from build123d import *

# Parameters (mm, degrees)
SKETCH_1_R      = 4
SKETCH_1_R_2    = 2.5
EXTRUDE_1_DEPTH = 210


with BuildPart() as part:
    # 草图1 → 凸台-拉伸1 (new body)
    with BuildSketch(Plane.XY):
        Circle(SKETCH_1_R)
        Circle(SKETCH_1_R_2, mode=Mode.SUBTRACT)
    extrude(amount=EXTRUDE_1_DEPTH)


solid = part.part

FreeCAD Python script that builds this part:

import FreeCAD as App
import Part
import Sketcher
Q = App.Units.Quantity

doc = App.newDocument("Part")
body = doc.addObject("PartDesign::Body", "Body")

sketch1 = body.newObject("Sketcher::SketchObject", "Sketch")
sketch1.AttachmentSupport = (doc.getObject("XY_Plane"), [""])
sketch1.MapMode = "FlatFace"
sketch1.addGeometry(Part.Circle(App.Vector(0, 0, 0), App.Vector(0, 0, 1), 4), False)
sketch1.addGeometry(Part.Circle(App.Vector(0, 0, 0), App.Vector(0, 0, 1), 2.5), False)
sketch1.addConstraint(Sketcher.Constraint("Coincident", 0, 3, -1, 1))
sketch1.addConstraint(Sketcher.Constraint("Coincident", 1, 3, -1, 1))
sketch1.addConstraint(Sketcher.Constraint("Diameter", 0, Q("8 mm")))
sketch1.addConstraint(Sketcher.Constraint("Diameter", 1, Q("5 mm")))
pad1 = body.newObject("PartDesign::Pad", "Pad")
pad1.Profile = sketch1
pad1.Length = 210

doc.recompute()
